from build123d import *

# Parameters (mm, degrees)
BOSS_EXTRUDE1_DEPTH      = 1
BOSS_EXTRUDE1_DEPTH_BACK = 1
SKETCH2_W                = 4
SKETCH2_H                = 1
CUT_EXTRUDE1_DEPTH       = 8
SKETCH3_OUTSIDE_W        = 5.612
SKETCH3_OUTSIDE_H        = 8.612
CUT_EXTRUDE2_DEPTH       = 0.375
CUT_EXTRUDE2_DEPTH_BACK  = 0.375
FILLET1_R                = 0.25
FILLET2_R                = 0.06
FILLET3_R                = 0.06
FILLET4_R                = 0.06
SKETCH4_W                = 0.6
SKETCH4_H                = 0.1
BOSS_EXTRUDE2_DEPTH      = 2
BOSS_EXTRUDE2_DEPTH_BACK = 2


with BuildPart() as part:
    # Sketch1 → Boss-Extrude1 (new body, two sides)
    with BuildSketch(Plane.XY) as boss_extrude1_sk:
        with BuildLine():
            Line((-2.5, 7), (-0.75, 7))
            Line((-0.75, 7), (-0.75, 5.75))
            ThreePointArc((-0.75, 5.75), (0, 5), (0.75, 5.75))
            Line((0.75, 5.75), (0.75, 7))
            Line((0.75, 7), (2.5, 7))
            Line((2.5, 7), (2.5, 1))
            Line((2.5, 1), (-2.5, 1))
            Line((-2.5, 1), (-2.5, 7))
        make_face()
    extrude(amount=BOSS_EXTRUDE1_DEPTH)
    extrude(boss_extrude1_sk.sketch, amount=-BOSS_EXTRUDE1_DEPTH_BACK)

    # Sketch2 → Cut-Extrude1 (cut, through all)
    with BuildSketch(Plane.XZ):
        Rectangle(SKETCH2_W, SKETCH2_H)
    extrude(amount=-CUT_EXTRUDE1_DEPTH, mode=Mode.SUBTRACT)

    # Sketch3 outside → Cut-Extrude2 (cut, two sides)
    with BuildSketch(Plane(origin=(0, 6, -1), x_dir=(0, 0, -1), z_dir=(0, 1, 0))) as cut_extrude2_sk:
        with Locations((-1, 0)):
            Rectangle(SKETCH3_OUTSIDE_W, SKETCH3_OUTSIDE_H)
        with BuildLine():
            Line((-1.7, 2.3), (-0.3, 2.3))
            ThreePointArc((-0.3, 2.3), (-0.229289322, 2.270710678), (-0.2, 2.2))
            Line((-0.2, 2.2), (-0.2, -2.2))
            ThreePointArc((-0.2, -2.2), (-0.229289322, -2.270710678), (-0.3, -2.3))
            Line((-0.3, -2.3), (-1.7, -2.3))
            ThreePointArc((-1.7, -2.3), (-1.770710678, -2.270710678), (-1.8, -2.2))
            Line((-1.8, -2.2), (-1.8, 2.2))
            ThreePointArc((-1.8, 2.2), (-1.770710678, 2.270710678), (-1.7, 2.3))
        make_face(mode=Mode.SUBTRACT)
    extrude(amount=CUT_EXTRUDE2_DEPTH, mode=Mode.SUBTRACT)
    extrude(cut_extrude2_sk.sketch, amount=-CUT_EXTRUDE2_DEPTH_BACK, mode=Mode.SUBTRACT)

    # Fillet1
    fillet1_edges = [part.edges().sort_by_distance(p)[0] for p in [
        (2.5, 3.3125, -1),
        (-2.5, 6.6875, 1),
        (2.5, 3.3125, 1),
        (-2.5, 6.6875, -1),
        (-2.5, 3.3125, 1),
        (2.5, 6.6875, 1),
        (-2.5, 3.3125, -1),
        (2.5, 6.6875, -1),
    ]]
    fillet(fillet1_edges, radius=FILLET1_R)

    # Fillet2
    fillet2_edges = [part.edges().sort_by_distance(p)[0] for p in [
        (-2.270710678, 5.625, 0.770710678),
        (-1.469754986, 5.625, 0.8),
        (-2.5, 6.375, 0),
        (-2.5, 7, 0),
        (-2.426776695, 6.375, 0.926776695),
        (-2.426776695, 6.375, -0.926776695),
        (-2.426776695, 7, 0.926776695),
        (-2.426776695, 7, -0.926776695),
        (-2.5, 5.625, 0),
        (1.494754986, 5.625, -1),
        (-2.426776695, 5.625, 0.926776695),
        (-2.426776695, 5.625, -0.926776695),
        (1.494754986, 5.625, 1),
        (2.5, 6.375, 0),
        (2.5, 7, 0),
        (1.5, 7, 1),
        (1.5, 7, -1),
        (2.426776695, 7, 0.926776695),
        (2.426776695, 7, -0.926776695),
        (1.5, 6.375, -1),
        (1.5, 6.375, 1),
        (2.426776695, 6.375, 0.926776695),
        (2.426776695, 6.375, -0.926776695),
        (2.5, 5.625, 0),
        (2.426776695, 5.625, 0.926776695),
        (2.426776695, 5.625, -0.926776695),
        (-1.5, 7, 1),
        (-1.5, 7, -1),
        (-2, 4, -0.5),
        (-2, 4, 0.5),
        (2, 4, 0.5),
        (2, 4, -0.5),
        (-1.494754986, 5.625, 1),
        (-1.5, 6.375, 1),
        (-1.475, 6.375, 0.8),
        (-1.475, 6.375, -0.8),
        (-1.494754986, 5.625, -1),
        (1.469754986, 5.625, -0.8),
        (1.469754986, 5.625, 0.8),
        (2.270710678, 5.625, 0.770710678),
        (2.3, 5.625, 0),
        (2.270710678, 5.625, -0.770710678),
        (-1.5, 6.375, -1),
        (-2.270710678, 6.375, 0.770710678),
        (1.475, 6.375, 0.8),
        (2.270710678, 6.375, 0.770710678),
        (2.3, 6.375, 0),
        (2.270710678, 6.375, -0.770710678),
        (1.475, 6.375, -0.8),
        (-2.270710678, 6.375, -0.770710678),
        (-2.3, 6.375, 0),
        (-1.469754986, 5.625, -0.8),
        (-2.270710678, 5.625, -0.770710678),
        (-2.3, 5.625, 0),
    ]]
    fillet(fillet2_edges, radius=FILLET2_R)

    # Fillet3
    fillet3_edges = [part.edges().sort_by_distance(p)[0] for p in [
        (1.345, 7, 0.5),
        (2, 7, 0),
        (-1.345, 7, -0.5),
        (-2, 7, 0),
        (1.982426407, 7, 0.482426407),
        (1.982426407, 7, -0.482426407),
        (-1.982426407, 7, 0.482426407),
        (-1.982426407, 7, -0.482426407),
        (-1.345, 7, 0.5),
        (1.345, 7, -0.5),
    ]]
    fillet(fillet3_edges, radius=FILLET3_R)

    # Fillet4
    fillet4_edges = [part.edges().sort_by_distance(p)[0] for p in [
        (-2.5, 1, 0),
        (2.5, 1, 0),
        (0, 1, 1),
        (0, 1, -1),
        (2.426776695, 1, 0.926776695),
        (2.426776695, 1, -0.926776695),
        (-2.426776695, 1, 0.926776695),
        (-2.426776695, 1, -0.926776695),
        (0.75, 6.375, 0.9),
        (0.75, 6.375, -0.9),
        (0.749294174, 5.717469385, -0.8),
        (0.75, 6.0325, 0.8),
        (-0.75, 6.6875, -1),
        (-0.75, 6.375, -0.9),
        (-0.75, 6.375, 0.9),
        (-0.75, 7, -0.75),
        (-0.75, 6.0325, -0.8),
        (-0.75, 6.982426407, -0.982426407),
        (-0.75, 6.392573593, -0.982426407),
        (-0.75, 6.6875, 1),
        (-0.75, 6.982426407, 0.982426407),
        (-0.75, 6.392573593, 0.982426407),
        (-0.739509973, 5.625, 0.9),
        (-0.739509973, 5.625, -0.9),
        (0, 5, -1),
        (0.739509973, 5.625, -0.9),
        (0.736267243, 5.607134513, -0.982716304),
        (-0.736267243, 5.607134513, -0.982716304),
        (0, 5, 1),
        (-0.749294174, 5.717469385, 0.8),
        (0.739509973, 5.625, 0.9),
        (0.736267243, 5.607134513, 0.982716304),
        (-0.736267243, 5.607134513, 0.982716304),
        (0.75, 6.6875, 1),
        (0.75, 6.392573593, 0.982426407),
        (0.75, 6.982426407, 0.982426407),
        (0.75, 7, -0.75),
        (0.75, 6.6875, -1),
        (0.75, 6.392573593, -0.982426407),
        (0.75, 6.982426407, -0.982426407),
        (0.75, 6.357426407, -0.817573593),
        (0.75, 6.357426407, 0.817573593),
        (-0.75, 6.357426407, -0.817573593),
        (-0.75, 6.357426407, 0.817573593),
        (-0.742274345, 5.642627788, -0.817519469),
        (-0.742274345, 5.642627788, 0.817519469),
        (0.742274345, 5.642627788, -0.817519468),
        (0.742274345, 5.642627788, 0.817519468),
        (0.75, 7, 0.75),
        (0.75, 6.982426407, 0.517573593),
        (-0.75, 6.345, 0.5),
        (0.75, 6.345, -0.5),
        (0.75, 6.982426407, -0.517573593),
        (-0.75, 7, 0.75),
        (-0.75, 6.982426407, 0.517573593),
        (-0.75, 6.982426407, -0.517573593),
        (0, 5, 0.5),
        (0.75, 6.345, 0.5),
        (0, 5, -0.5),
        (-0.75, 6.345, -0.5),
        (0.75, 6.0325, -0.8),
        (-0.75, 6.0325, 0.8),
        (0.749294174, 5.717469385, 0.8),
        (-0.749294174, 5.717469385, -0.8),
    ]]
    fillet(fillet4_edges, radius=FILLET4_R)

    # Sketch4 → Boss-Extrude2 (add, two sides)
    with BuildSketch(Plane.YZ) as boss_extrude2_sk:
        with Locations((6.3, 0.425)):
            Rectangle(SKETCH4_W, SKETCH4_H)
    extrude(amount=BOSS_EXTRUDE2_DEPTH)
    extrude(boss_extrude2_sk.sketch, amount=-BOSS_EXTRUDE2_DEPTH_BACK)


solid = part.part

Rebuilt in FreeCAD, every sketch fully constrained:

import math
import FreeCAD as App
import Part
import Sketcher

V = App.Vector
Q = App.Units.Quantity


def edges_at(feature, points):
    """Names of the edges that pass closest to the given points."""
    edges = feature.Shape.Edges
    near = lambda p: min(range(len(edges)), key=lambda i: edges[i].distToShape(Part.Vertex(*p))[0])
    return sorted({f"Edge{near(p) + 1}" for p in points})

doc = App.newDocument("Part")
body = doc.addObject("PartDesign::Body", "Body")

sketch1 = doc.addObject("Sketcher::SketchObject", "Sketch")
body.addObject(sketch1)
sketch1.AttachmentSupport = (doc.XY_Plane, [""])
sketch1.MapMode = "FlatFace"
sketch1.addGeometry([
    Part.LineSegment(V(-0.8, 7, 0), V(-2.5, 7, 0)),
    Part.LineSegment(V(-2.5, 7, 0), V(-2.5, 1, 0)),
    Part.LineSegment(V(-2.5, 1, 0), V(2.5, 1, 0)),
    Part.LineSegment(V(2.5, 1, 0), V(2.5, 7, 0)),
    Part.LineSegment(V(2.5, 7, 0), V(0.8, 7, 0)),
    Part.LineSegment(V(0.8, 7, 0), V(0.8, 5.8, 0)),
    Part.ArcOfCircle(Part.Circle(V(0, 5.8, 0), V(0, 0, 1), 0.8), math.radians(180), math.radians(360)),
    Part.LineSegment(V(-0.8, 5.8, 0), V(-0.8, 7, 0)),
], False)
sketch1.addConstraint([
    Sketcher.Constraint("Coincident", 0, 2, 1, 1),
    Sketcher.Constraint("Coincident", 1, 2, 2, 1),
    Sketcher.Constraint("Coincident", 2, 2, 3, 1),
    Sketcher.Constraint("Coincident", 3, 2, 4, 1),
    Sketcher.Constraint("Coincident", 4, 2, 5, 1),
    Sketcher.Constraint("Tangent", 5, 2, 6, 2),
    Sketcher.Constraint("Tangent", 6, 1, 7, 1),
    Sketcher.Constraint("Coincident", 7, 2, 0, 1),
    Sketcher.Constraint("Horizontal", 0),
    Sketcher.Constraint("Vertical", 1),
    Sketcher.Constraint("Horizontal", 2),
    Sketcher.Constraint("Vertical", 3),
    Sketcher.Constraint("Horizontal", 4),
    Sketcher.Constraint("Vertical", 5),
    Sketcher.Constraint("Vertical", 7),
    Sketcher.Constraint("Symmetric", 0, 2, 3, 2, -2),
    Sketcher.Constraint("PointOnObject", 6, 3, -2),
    Sketcher.Constraint("DistanceX", 2, 1, 2, 2, Q("5 mm")),
    Sketcher.Constraint("DistanceY", 1, 2, 1, 1, Q("6 mm")),
    Sketcher.Constraint("Radius", 6, Q("0.75 mm")),
    Sketcher.Constraint("DistanceY", -1, 1, 0, 2, Q("7 mm")),
    Sketcher.Constraint("DistanceY", 5, 2, 5, 1, Q("1.25 mm")),
])
pad1 = doc.addObject("PartDesign::Pad", "Pad")
body.addObject(pad1)
pad1.Profile = sketch1
pad1.Type = "TwoLengths"
pad1.Length = 1
pad1.Length2 = 1

sketch2 = doc.addObject("Sketcher::SketchObject", "Sketch001")
body.addObject(sketch2)
sketch2.AttachmentSupport = (doc.XZ_Plane, [""])
sketch2.MapMode = "FlatFace"
sketch2.addGeometry([
    Part.LineSegment(V(-2, 0.5, 0), V(-2, -0.5, 0)),
    Part.LineSegment(V(-2, -0.5, 0), V(2, -0.5, 0)),
    Part.LineSegment(V(2, -0.5, 0), V(2, 0.5, 0)),
    Part.LineSegment(V(2, 0.5, 0), V(-2, 0.5, 0)),
], False)
sketch2.addConstraint([
    Sketcher.Constraint("Coincident", 0, 2, 1, 1),
    Sketcher.Constraint("Coincident", 1, 2, 2, 1),
    Sketcher.Constraint("Coincident", 2, 2, 3, 1),
    Sketcher.Constraint("Coincident", 3, 2, 0, 1),
    Sketcher.Constraint("Vertical", 0),
    Sketcher.Constraint("Horizontal", 1),
    Sketcher.Constraint("Vertical", 2),
    Sketcher.Constraint("Horizontal", 3),
    Sketcher.Constraint("Symmetric", 0, 2, 2, 2, -1, 1),
    Sketcher.Constraint("DistanceX", 1, 1, 1, 2, Q("4 mm")),
    Sketcher.Constraint("DistanceY", 0, 2, 0, 1, Q("1 mm")),
])
pocket1 = doc.addObject("PartDesign::Pocket", "Pocket")
body.addObject(pocket1)
pocket1.Profile = sketch2
pocket1.Type = "ThroughAll"

sketch3 = doc.addObject("Sketcher::SketchObject", "Sketch002")
body.addObject(sketch3)
sketch3.AttachmentSupport = (doc.XZ_Plane, [""])
sketch3.MapMode = "FlatFace"
sketch3.AttachmentOffset = App.Placement(V(0, 0, -6), App.Rotation())
sketch3.addGeometry([
    Part.LineSegment(V(-4.31, 2.81, 0), V(4.31, 2.81, 0)),
    Part.LineSegment(V(4.31, 2.81, 0), V(4.31, -2.81, 0)),
    Part.LineSegment(V(4.31, -2.81, 0), V(-4.31, -2.81, 0)),
    Part.LineSegment(V(-4.31, -2.81, 0), V(-4.31, 2.81, 0)),
    Part.ArcOfCircle(Part.Circle(V(-2.2, 0.7, 0), V(0, 0, 1), 0.1), math.radians(90), math.radians(180)),
    Part.LineSegment(V(-2.3, 0.7, 0), V(-2.3, -0.7, 0)),
    Part.ArcOfCircle(Part.Circle(V(-2.2, -0.7, 0), V(0, 0, 1), 0.1), math.radians(180), math.radians(270)),
    Part.LineSegment(V(-2.2, -0.8, 0), V(2.2, -0.8, 0)),
    Part.ArcOfCircle(Part.Circle(V(2.2, -0.7, 0), V(0, 0, 1), 0.1), math.radians(-90), math.radians(0)),
    Part.LineSegment(V(2.3, -0.7, 0), V(2.3, 0.7, 0)),
    Part.ArcOfCircle(Part.Circle(V(2.2, 0.7, 0), V(0, 0, 1), 0.1), math.radians(0), math.radians(90)),
    Part.LineSegment(V(2.2, 0.8, 0), V(-2.2, 0.8, 0)),
], False)
sketch3.addConstraint([
    Sketcher.Constraint("Coincident", 0, 2, 1, 1),
    Sketcher.Constraint("Coincident", 1, 2, 2, 1),
    Sketcher.Constraint("Coincident", 2, 2, 3, 1),
    Sketcher.Constraint("Coincident", 3, 2, 0, 1),
    Sketcher.Constraint("Tangent", 4, 2, 5, 1),
    Sketcher.Constraint("Tangent", 5, 2, 6, 1),
    Sketcher.Constraint("Tangent", 6, 2, 7, 1),
    Sketcher.Constraint("Tangent", 7, 2, 8, 1),
    Sketcher.Constraint("Tangent", 8, 2, 9, 1),
    Sketcher.Constraint("Tangent", 9, 2, 10, 1),
    Sketcher.Constraint("Tangent", 10, 2, 11, 1),
    Sketcher.Constraint("Tangent", 11, 2, 4, 1),
    Sketcher.Constraint("Horizontal", 0),
    Sketcher.Constraint("Vertical", 1),
    Sketcher.Constraint("Horizontal", 2),
    Sketcher.Constraint("Vertical", 3),
    Sketcher.Constraint("Vertical", 5),
    Sketcher.Constraint("Horizontal", 7),
    Sketcher.Constraint("Vertical", 9),
    Sketcher.Constraint("Horizontal", 11),
    Sketcher.Constraint("Equal", 4, 6),
    Sketcher.Constraint("Equal", 6, 8),
    Sketcher.Constraint("Equal", 8, 10),
    Sketcher.Constraint("Symmetric", 4, 3, 8, 3, -1, 1),
    Sketcher.Constraint("Symmetric", 0, 2, 2, 2, -1, 1),
    Sketcher.Constraint("Radius", 4, Q("0.1 mm")),
    Sketcher.Constraint("DistanceX", 7, 1, 7, 2, Q("4.4 mm")),
    Sketcher.Constraint("DistanceY", 5, 2, 5, 1, Q("1.4 mm")),
    Sketcher.Constraint("DistanceX", 0, 1, 0, 2, Q("8.612 mm")),
    Sketcher.Constraint("DistanceY", 1, 2, 1, 1, Q("5.612 mm")),
])
pocket2 = doc.addObject("PartDesign::Pocket", "Pocket001")
body.addObject(pocket2)
pocket2.Profile = sketch3
pocket2.Type = "TwoLengths"
pocket2.Length = 0.375
pocket2.Length2 = 0.375
doc.recompute()

fillet = doc.addObject("PartDesign::Fillet", "Fillet")
body.addObject(fillet)
fillet.Base = (pocket2, edges_at(pocket2, [
    (2.5, 3.312, -1),
    (-2.5, 6.688, 1),
    (2.5, 3.312, 1),
    (-2.5, 6.688, -1),
    (-2.5, 3.312, 1),
    (2.5, 6.688, 1),
    (-2.5, 3.312, -1),
    (2.5, 6.688, -1),
]))
fillet.Radius = 0.25
doc.recompute()

fillet2 = doc.addObject("PartDesign::Fillet", "Fillet001")
body.addObject(fillet2)
fillet2.Base = (fillet, edges_at(fillet, [
    (-2.271, 5.625, 0.771),
    (-1.47, 5.625, 0.8),
    (-2.5, 6.375, 0),
    (-2.5, 7, 0),
    (-2.427, 6.375, 0.927),
    (-2.427, 6.375, -0.927),
    (-2.427, 7, 0.927),
    (-2.427, 7, -0.927),
    (-2.5, 5.625, 0),
    (1.495, 5.625, -1),
    (-2.427, 5.625, 0.927),
    (-2.427, 5.625, -0.927),
    (1.495, 5.625, 1),
    (2.5, 6.375, 0),
    (2.5, 7, 0),
    (1.5, 7, 1),
    (1.5, 7, -1),
    (2.427, 7, 0.927),
    (2.427, 7, -0.927),
    (1.5, 6.375, -1),
    (1.5, 6.375, 1),
    (2.427, 6.375, 0.927),
    (2.427, 6.375, -0.927),
    (2.5, 5.625, 0),
    (2.427, 5.625, 0.927),
    (2.427, 5.625, -0.927),
    (-1.5, 7, 1),
    (-1.5, 7, -1),
    (-2, 4, -0.5),
    (-2, 4, 0.5),
    (2, 4, 0.5),
    (2, 4, -0.5),
    (-1.495, 5.625, 1),
    (-1.5, 6.375, 1),
    (-1.475, 6.375, 0.8),
    (-1.475, 6.375, -0.8),
    (-1.495, 5.625, -1),
    (1.47, 5.625, -0.8),
    (1.47, 5.625, 0.8),
    (2.271, 5.625, 0.771),
    (2.3, 5.625, 0),
    (2.271, 5.625, -0.771),
    (-1.5, 6.375, -1),
    (-2.271, 6.375, 0.771),
    (1.475, 6.375, 0.8),
    (2.271, 6.375, 0.771),
    (2.3, 6.375, 0),
    (2.271, 6.375, -0.771),
    (1.475, 6.375, -0.8),
    (-2.271, 6.375, -0.771),
    (-2.3, 6.375, 0),
    (-1.47, 5.625, -0.8),
    (-2.271, 5.625, -0.771),
    (-2.3, 5.625, 0),
]))
fillet2.Radius = 0.06
doc.recompute()

fillet3 = doc.addObject("PartDesign::Fillet", "Fillet002")
body.addObject(fillet3)
fillet3.Base = (fillet2, edges_at(fillet2, [
    (1.345, 7, 0.5),
    (2, 7, 0),
    (-1.345, 7, -0.5),
    (-2, 7, 0),
    (1.982, 7, 0.482),
    (1.982, 7, -0.482),
    (-1.982, 7, 0.482),
    (-1.982, 7, -0.482),
    (-1.345, 7, 0.5),
    (1.345, 7, -0.5),
]))
fillet3.Radius = 0.06
doc.recompute()

fillet4 = doc.addObject("PartDesign::Fillet", "Fillet003")
body.addObject(fillet4)
fillet4.Base = (fillet3, edges_at(fillet3, [
    (-2.5, 1, 0),
    (2.5, 1, 0),
    (0, 1, 1),
    (0, 1, -1),
    (2.427, 1, 0.927),
    (2.427, 1, -0.927),
    (-2.427, 1, 0.927),
    (-2.427, 1, -0.927),
    (0.75, 6.375, 0.9),
    (0.75, 6.375, -0.9),
    (0.749, 5.717, -0.8),
    (0.75, 6.032, 0.8),
    (-0.75, 6.688, -1),
    (-0.75, 6.375, -0.9),
    (-0.75, 6.375, 0.9),
    (-0.75, 7, -0.75),
    (-0.75, 6.032, -0.8),
    (-0.75, 6.982, -0.982),
    (-0.75, 6.393, -0.982),
    (-0.75, 6.688, 1),
    (-0.75, 6.982, 0.982),
    (-0.75, 6.393, 0.982),
    (-0.74, 5.625, 0.9),
    (-0.74, 5.625, -0.9),
    (0, 5, -1),
    (0.74, 5.625, -0.9),
    (0.736, 5.607, -0.983),
    (-0.736, 5.607, -0.983),
    (0, 5, 1),
    (-0.749, 5.717, 0.8),
    (0.74, 5.625, 0.9),
    (0.736, 5.607, 0.983),
    (-0.736, 5.607, 0.983),
    (0.75, 6.688, 1),
    (0.75, 6.393, 0.982),
    (0.75, 6.982, 0.982),
    (0.75, 7, -0.75),
    (0.75, 6.688, -1),
    (0.75, 6.393, -0.982),
    (0.75, 6.982, -0.982),
    (0.75, 6.357, -0.818),
    (0.75, 6.357, 0.818),
    (-0.75, 6.357, -0.818),
    (-0.75, 6.357, 0.818),
    (-0.742, 5.643, -0.818),
    (-0.742, 5.643, 0.818),
    (0.742, 5.643, -0.818),
    (0.742, 5.643, 0.818),
    (0.75, 7, 0.75),
    (0.75, 6.982, 0.518),
    (-0.75, 6.345, 0.5),
    (0.75, 6.345, -0.5),
    (0.75, 6.982, -0.518),
    (-0.75, 7, 0.75),
    (-0.75, 6.982, 0.518),
    (-0.75, 6.982, -0.518),
    (0, 5, 0.5),
    (0.75, 6.345, 0.5),
    (0, 5, -0.5),
    (-0.75, 6.345, -0.5),
    (0.75, 6.032, -0.8),
    (-0.75, 6.032, 0.8),
    (0.749, 5.717, 0.8),
    (-0.749, 5.717, -0.8),
]))
fillet4.Radius = 0.06

sketch4 = doc.addObject("Sketcher::SketchObject", "Sketch003")
body.addObject(sketch4)
sketch4.AttachmentSupport = (doc.YZ_Plane, [""])
sketch4.MapMode = "FlatFace"
sketch4.addGeometry([
    Part.LineSegment(V(6, 0.47, 0), V(6, 0.38, 0)),
    Part.LineSegment(V(6, 0.38, 0), V(6.6, 0.38, 0)),
    Part.LineSegment(V(6.6, 0.38, 0), V(6.6, 0.47, 0)),
    Part.LineSegment(V(6.6, 0.47, 0), V(6, 0.47, 0)),
], False)
sketch4.addConstraint([
    Sketcher.Constraint("Coincident", 0, 2, 1, 1),
    Sketcher.Constraint("Coincident", 1, 2, 2, 1),
    Sketcher.Constraint("Coincident", 2, 2, 3, 1),
    Sketcher.Constraint("Coincident", 3, 2, 0, 1),
    Sketcher.Constraint("Vertical", 0),
    Sketcher.Constraint("Horizontal", 1),
    Sketcher.Constraint("Vertical", 2),
    Sketcher.Constraint("Horizontal", 3),
    Sketcher.Constraint("DistanceX", 1, 1, 1, 2, Q("0.6 mm")),
    Sketcher.Constraint("DistanceY", 0, 2, 0, 1, Q("0.1 mm")),
    Sketcher.Constraint("DistanceX", -1, 1, 0, 2, Q("6 mm")),
    Sketcher.Constraint("DistanceY", -1, 1, 0, 2, Q("0.375 mm")),
])
pad2 = doc.addObject("PartDesign::Pad", "Pad001")
body.addObject(pad2)
pad2.Profile = sketch4
pad2.Type = "TwoLengths"
pad2.Length = 2
pad2.Length2 = 2

doc.recompute()
